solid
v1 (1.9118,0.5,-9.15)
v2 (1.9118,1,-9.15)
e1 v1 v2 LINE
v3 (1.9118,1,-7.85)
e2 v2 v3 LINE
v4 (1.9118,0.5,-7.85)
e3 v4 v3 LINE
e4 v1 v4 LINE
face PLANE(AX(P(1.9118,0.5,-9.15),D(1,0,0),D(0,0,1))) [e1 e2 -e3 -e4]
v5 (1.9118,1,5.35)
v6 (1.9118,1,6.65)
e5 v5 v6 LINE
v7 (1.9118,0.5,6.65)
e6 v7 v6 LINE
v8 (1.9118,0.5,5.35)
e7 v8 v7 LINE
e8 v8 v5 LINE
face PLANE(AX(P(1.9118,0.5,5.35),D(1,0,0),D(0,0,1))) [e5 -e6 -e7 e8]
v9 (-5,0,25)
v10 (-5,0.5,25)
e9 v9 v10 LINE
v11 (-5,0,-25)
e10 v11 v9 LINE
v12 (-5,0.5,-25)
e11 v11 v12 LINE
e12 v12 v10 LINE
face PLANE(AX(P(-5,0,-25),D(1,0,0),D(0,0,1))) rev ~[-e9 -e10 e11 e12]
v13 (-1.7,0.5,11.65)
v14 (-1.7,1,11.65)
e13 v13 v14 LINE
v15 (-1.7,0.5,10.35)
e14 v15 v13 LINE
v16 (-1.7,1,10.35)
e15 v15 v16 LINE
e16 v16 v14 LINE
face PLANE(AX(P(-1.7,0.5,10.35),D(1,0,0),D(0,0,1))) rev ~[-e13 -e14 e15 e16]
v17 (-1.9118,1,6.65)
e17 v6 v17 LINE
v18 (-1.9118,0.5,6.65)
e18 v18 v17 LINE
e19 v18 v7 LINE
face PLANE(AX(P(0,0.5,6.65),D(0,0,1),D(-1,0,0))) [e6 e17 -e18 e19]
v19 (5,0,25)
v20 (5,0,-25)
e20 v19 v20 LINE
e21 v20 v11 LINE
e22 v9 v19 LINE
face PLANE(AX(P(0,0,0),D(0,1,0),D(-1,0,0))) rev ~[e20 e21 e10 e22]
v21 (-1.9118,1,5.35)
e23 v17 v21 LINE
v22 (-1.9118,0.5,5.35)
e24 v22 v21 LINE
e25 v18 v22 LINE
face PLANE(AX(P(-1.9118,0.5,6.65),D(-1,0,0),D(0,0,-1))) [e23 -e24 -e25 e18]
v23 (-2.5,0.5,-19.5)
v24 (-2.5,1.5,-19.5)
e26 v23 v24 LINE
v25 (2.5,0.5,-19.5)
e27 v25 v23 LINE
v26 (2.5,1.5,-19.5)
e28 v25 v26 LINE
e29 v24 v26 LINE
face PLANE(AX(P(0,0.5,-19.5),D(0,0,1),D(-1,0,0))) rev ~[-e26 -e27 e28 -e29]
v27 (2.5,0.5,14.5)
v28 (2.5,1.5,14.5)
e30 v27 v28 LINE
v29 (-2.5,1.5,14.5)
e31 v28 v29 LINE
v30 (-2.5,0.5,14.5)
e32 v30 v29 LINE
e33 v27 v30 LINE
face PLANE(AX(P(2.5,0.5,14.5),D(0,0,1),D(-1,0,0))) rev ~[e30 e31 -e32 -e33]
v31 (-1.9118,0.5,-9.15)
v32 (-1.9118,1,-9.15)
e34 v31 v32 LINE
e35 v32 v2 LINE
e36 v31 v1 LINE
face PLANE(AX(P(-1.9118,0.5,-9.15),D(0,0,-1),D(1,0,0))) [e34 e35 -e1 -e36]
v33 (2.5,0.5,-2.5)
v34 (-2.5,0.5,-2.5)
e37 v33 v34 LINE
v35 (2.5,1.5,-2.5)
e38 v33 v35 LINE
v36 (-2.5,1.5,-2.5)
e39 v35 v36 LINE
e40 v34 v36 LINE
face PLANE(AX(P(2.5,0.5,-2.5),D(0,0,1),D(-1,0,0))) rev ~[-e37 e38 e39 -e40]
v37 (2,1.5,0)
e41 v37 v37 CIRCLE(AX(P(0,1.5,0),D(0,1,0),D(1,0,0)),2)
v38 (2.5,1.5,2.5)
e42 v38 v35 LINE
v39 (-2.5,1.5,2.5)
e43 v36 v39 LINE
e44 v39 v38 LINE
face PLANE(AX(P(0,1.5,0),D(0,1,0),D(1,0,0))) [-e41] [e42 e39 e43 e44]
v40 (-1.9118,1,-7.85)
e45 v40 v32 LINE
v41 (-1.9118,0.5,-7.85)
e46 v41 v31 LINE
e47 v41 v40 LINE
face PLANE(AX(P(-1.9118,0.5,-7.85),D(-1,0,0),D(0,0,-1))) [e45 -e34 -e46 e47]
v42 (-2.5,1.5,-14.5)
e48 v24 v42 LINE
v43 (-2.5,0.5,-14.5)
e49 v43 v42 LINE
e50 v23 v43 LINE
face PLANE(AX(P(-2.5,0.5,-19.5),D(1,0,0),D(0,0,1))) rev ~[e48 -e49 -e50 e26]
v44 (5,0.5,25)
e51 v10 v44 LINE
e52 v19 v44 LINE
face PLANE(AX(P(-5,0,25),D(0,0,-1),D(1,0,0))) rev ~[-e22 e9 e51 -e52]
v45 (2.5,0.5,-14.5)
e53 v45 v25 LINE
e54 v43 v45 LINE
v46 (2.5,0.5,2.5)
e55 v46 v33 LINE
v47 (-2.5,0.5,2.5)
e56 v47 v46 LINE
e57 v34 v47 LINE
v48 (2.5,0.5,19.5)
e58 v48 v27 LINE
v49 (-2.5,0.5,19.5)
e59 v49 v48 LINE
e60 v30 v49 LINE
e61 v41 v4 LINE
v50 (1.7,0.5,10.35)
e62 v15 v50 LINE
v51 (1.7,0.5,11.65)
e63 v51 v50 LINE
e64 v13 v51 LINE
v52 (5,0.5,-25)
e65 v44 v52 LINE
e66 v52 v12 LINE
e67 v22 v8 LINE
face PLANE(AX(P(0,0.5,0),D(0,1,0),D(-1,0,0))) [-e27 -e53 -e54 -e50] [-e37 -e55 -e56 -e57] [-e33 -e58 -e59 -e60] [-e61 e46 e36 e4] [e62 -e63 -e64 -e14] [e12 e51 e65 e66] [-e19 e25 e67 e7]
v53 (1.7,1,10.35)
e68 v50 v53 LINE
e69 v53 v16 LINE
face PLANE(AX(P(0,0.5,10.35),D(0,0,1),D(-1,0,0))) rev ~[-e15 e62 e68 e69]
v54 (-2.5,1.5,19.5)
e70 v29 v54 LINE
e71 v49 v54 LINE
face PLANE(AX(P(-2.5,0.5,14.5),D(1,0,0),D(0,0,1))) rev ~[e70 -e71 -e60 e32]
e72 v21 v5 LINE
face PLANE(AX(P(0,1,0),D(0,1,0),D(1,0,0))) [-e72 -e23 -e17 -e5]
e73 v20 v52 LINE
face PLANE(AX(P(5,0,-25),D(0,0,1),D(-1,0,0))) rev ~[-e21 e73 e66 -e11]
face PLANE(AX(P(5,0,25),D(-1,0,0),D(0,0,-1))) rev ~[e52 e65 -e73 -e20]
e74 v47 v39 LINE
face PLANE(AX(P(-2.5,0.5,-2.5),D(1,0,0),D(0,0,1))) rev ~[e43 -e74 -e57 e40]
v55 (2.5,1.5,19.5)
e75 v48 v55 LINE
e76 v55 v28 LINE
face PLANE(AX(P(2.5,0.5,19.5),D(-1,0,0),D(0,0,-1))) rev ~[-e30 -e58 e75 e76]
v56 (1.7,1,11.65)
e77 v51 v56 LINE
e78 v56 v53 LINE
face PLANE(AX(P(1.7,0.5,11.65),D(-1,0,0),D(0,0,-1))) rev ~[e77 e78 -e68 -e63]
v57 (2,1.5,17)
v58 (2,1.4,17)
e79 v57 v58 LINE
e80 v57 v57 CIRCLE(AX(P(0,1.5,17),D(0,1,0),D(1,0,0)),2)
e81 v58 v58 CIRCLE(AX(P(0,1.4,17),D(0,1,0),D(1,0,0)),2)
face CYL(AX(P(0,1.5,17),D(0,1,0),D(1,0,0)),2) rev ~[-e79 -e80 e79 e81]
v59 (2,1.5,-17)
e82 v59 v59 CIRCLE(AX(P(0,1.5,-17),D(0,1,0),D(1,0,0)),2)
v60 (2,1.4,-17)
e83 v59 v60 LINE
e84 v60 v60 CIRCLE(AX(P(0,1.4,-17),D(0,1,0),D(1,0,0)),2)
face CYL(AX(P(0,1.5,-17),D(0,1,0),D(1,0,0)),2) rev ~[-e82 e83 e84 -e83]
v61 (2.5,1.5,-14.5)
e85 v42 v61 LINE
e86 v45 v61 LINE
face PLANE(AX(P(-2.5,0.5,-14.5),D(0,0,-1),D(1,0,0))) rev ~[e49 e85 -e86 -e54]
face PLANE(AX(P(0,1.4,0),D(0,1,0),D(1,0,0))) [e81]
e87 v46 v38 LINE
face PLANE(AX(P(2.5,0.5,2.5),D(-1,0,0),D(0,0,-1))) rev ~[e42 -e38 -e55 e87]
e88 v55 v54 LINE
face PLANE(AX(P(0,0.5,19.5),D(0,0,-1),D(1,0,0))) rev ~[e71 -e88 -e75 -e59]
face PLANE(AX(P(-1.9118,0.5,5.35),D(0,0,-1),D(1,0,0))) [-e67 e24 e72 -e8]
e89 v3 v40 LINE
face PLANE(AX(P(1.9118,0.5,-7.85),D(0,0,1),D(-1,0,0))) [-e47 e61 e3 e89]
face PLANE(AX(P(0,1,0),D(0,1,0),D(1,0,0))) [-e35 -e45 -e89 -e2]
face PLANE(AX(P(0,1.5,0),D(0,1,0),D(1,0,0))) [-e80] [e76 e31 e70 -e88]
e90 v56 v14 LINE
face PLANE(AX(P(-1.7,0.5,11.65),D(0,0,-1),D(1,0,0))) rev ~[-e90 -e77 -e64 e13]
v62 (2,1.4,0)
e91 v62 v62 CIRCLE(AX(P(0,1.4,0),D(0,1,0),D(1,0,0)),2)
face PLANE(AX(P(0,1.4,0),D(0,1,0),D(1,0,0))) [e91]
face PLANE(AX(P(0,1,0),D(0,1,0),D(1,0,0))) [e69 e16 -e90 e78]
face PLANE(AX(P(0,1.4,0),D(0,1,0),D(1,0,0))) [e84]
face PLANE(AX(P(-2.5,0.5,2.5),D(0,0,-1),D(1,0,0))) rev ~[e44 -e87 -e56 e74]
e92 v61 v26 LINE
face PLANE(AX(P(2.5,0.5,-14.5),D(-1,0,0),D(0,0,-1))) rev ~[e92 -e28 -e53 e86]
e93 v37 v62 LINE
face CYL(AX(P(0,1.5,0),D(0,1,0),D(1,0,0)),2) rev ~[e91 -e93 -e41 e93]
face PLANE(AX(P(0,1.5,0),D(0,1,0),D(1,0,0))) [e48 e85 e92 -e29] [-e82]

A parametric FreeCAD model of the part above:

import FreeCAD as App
import Part
import Sketcher

V = App.Vector


def add_polygon(sketch, points):
    """Adds a closed chain of lines whose ends are joined by coincident constraints."""
    first, n = sketch.GeometryCount, len(points)
    for a, b in zip(points, points[1:] + points[:1]):
        sketch.addGeometry(Part.LineSegment(App.Vector(*a, 0), App.Vector(*b, 0)), False)
    for i in range(n):
        sketch.addConstraint(Sketcher.Constraint("Coincident", first + i, 2, first + (i + 1) % n, 1))

doc = App.newDocument("Part")
body = doc.addObject("PartDesign::Body", "Body")

sketch1 = doc.addObject("Sketcher::SketchObject", "Sketch")
body.addObject(sketch1)
sketch1.AttachmentSupport = (doc.XZ_Plane, [""])
sketch1.MapMode = "FlatFace"
add_polygon(sketch1, [(-5, 25), (5, 25), (5, -25), (-5, -25)])
sketch1.addConstraint(Sketcher.Constraint("Horizontal", 0))
sketch1.addConstraint(Sketcher.Constraint("Vertical", 1))
sketch1.addConstraint(Sketcher.Constraint("Horizontal", 2))
sketch1.addConstraint(Sketcher.Constraint("Vertical", 3))
sketch1.addConstraint(Sketcher.Constraint("Symmetric", 0, 2, 2, 2, -1, 1))
sketch1.addConstraint(Sketcher.Constraint("DistanceX", 0, 1, 0, 2, 10.0))
sketch1.addConstraint(Sketcher.Constraint("DistanceY", 1, 2, 1, 1, 50.0))
pad1 = doc.addObject("PartDesign::Pad", "Pad")
body.addObject(pad1)
pad1.Profile = sketch1
pad1.Length = 0.5
pad1.Reversed = True

sketch2 = doc.addObject("Sketcher::SketchObject", "Sketch001")
body.addObject(sketch2)
sketch2.AttachmentSupport = (doc.XZ_Plane, [""])
sketch2.MapMode = "FlatFace"
sketch2.AttachmentOffset = App.Placement(V(0, 0, -0.5), App.Rotation())
add_polygon(sketch2, [(-2.5, 2.5), (2.5, 2.5), (2.5, -2.5), (-2.5, -2.5)])
add_polygon(sketch2, [(-2.5, 19.5), (2.5, 19.5), (2.5, 14.5), (-2.5, 14.5)])
add_polygon(sketch2, [(-2.5, -14.5), (2.5, -14.5), (2.5, -19.5), (-2.5, -19.5)])
sketch2.addConstraint(Sketcher.Constraint("Horizontal", 0))
sketch2.addConstraint(Sketcher.Constraint("Vertical", 1))
sketch2.addConstraint(Sketcher.Constraint("Horizontal", 2))
sketch2.addConstraint(Sketcher.Constraint("Vertical", 3))
sketch2.addConstraint(Sketcher.Constraint("Horizontal", 4))
sketch2.addConstraint(Sketcher.Constraint("Vertical", 5))
sketch2.addConstraint(Sketcher.Constraint("Horizontal", 6))
sketch2.addConstraint(Sketcher.Constraint("Vertical", 7))
sketch2.addConstraint(Sketcher.Constraint("Horizontal", 8))
sketch2.addConstraint(Sketcher.Constraint("Vertical", 9))
sketch2.addConstraint(Sketcher.Constraint("Horizontal", 10))
sketch2.addConstraint(Sketcher.Constraint("Vertical", 11))
sketch2.addConstraint(Sketcher.Constraint("Symmetric", 0, 2, 2, 2, -1, 1))
sketch2.addConstraint(Sketcher.Constraint("Symmetric", 6, 2, 8, 2, -1, 1))
sketch2.addConstraint(Sketcher.Constraint("Symmetric", 4, 2, 10, 2, -1, 1))
sketch2.addConstraint(Sketcher.Constraint("Vertical", 1, 2, 4, 2))
sketch2.addConstraint(Sketcher.Constraint("Vertical", 3, 2, 6, 2))
sketch2.addConstraint(Sketcher.Constraint("Equal", 10, 1))
sketch2.addConstraint(Sketcher.Constraint("Equal", 3, 5))
sketch2.addConstraint(Sketcher.Constraint("DistanceX", 0, 1, 0, 2, 5.0))
sketch2.addConstraint(Sketcher.Constraint("DistanceY", 0, 2, 4, 2, 17.0))
pad2 = doc.addObject("PartDesign::Pad", "Pad001")
body.addObject(pad2)
pad2.Profile = sketch2
pad2.Length = 1
pad2.Reversed = True

sketch3 = doc.addObject("Sketcher::SketchObject", "Sketch002")
body.addObject(sketch3)
sketch3.AttachmentSupport = (doc.XZ_Plane, [""])
sketch3.MapMode = "FlatFace"
sketch3.AttachmentOffset = App.Placement(V(0, 0, -0.5), App.Rotation())
add_polygon(sketch3, [(-1.7, 11.65), (1.7, 11.65), (1.7, 10.35), (-1.7, 10.35)])
add_polygon(sketch3, [(-1.9118, 6.65), (1.9118, 6.65), (1.9118, 5.35), (-1.9118, 5.35)])
add_polygon(sketch3, [(-1.9118, -7.85), (1.9118, -7.85), (1.9118, -9.15), (-1.9118, -9.15)])
sketch3.addConstraint(Sketcher.Constraint("Horizontal", 0))
sketch3.addConstraint(Sketcher.Constraint("Vertical", 1))
sketch3.addConstraint(Sketcher.Constraint("Horizontal", 2))
sketch3.addConstraint(Sketcher.Constraint("Vertical", 3))
sketch3.addConstraint(Sketcher.Constraint("Horizontal", 4))
sketch3.addConstraint(Sketcher.Constraint("Vertical", 5))
sketch3.addConstraint(Sketcher.Constraint("Horizontal", 6))
sketch3.addConstraint(Sketcher.Constraint("Vertical", 7))
sketch3.addConstraint(Sketcher.Constraint("Horizontal", 8))
sketch3.addConstraint(Sketcher.Constraint("Vertical", 9))
sketch3.addConstraint(Sketcher.Constraint("Horizontal", 10))
sketch3.addConstraint(Sketcher.Constraint("Vertical", 11))
sketch3.addConstraint(Sketcher.Constraint("Vertical", 5, 2, 8, 2))
sketch3.addConstraint(Sketcher.Constraint("Vertical", 7, 2, 10, 2))
sketch3.addConstraint(Sketcher.Constraint("Equal", 3, 5))
sketch3.addConstraint(Sketcher.Constraint("Equal", 7, 9))
sketch3.addConstraint(Sketcher.Constraint("DistanceX", 0, 1, 0, 2, 3.4))
sketch3.addConstraint(Sketcher.Constraint("DistanceY", 1, 2, 1, 1, 1.3))
sketch3.addConstraint(Sketcher.Constraint("DistanceY", 4, 2, 0, 2, 5.0))
sketch3.addConstraint(Sketcher.Constraint("DistanceX", -1, 1, 0, 2, 1.7))
sketch3.addConstraint(Sketcher.Constraint("DistanceY", 8, 2, 5, 2, 13.2))
sketch3.addConstraint(Sketcher.Constraint("DistanceY", -1, 1, 0, 2, 11.65))
sketch3.addConstraint(Sketcher.Constraint("DistanceX", 4, 1, 4, 2, 3.8236))
sketch3.addConstraint(Sketcher.Constraint("DistanceX", -1, 1, 4, 2, 1.9118))
pad3 = doc.addObject("PartDesign::Pad", "Pad002")
body.addObject(pad3)
pad3.Profile = sketch3
pad3.Length = 0.5
pad3.Reversed = True

sketch4 = doc.addObject("Sketcher::SketchObject", "Sketch003")
body.addObject(sketch4)
sketch4.AttachmentSupport = (doc.XZ_Plane, [""])
sketch4.MapMode = "FlatFace"
sketch4.AttachmentOffset = App.Placement(V(0, 0, -1.5), App.Rotation())
sketch4.addGeometry(Part.Circle(V(0, 0, 0), V(0, 0, 1), 2), False)
sketch4.addGeometry(Part.Circle(V(0, 17, 0), V(0, 0, 1), 2), False)
sketch4.addGeometry(Part.Circle(V(0, -17, 0), V(0, 0, 1), 2), False)
sketch4.addConstraint(Sketcher.Constraint("Coincident", 0, 3, -1, 1))
sketch4.addConstraint(Sketcher.Constraint("Equal", 0, 1))
sketch4.addConstraint(Sketcher.Constraint("Equal", 1, 2))
sketch4.addConstraint(Sketcher.Constraint("Symmetric", 1, 3, 2, 3, -1, 1))
sketch4.addConstraint(Sketcher.Constraint("PointOnObject", 1, 3, -2))
sketch4.addConstraint(Sketcher.Constraint("Diameter", 0, 4.0))
sketch4.addConstraint(Sketcher.Constraint("DistanceY", -1, 1, 1, 3, 17.0))
pocket1 = doc.addObject("PartDesign::Pocket", "Pocket")
body.addObject(pocket1)
pocket1.Profile = sketch4
pocket1.Length = 0.1
pocket1.Reversed = True

doc.recompute()
